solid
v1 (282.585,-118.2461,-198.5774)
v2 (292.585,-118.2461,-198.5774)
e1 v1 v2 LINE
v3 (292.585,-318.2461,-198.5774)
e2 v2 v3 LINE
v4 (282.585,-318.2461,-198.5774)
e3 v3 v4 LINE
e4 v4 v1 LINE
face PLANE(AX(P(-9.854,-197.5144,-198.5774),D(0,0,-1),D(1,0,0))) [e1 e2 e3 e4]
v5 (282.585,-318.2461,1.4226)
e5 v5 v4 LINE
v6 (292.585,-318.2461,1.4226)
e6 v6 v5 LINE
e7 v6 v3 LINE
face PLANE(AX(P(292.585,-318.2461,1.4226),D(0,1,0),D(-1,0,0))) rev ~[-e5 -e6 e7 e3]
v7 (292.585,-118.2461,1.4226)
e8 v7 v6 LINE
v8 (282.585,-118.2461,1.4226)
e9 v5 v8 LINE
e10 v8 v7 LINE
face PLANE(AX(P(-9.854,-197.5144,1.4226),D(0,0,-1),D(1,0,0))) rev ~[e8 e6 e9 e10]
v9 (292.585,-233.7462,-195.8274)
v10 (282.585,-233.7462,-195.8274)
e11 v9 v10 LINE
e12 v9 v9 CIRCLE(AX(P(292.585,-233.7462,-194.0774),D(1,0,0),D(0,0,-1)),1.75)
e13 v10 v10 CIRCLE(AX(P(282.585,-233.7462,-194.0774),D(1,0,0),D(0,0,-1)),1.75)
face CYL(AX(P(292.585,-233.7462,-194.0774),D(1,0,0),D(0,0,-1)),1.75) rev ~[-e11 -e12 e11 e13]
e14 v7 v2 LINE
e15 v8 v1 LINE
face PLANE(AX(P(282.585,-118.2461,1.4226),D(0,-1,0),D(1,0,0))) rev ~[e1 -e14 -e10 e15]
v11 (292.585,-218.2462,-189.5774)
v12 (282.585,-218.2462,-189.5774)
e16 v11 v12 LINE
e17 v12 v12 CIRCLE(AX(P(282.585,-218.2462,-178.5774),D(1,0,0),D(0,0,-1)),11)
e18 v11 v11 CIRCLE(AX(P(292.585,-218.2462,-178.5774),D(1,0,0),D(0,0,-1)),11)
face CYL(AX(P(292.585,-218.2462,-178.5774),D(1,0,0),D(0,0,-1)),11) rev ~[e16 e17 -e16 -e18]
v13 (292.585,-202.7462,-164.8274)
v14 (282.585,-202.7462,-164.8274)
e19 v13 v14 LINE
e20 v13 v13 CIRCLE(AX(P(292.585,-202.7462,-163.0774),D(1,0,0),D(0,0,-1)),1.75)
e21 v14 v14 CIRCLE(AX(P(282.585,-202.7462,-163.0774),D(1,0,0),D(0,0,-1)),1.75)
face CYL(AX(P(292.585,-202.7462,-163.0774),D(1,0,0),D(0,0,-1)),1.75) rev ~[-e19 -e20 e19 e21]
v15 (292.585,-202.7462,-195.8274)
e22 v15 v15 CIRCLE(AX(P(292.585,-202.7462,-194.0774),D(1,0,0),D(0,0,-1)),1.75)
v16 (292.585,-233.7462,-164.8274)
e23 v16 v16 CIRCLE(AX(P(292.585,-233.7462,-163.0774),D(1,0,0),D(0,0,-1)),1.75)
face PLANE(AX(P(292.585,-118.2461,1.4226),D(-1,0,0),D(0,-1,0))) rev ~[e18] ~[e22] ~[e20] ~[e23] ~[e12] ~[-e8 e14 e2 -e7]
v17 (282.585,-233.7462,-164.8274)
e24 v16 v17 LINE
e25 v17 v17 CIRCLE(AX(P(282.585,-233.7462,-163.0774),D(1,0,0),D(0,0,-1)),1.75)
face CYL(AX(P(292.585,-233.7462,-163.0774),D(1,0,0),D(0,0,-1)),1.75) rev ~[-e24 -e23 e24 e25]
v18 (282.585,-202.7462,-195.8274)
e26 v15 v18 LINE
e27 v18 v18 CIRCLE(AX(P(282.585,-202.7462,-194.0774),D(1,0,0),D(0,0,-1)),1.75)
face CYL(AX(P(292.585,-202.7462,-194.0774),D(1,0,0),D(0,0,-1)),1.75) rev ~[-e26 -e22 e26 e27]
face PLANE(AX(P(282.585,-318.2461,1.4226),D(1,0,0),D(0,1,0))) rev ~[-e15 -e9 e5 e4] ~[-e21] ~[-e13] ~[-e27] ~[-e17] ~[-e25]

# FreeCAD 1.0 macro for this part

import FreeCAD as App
import Part
import Sketcher


def add_polygon(sketch, points):
    """Adds a closed chain of lines whose ends are joined by coincident constraints."""
    first, n = sketch.GeometryCount, len(points)
    for a, b in zip(points, points[1:] + points[:1]):
        sketch.addGeometry(Part.LineSegment(App.Vector(*a, 0), App.Vector(*b, 0)), False)
    for i in range(n):
        sketch.addConstraint(Sketcher.Constraint("Coincident", first + i, 2, first + (i + 1) % n, 1))

doc = App.newDocument("Part")
params = doc.addObject("Spreadsheet::Sheet", "Params")
for row, (alias, value) in enumerate([
    ("sketch1_width", "10 mm"),
    ("sketch1_height", "200 mm"),
    ("pad1_length", "200 mm"),
    ("sketch2_diameter", "22 mm"),
    ("sketch2_diameter2", "3.5 mm"),
    ("pocket1_length", "10 mm"),
], start=1):
    params.set(f"A{row}", alias)
    params.set(f"B{row}", "=" + value)
    params.setAlias(f"B{row}", alias)

body = doc.addObject("PartDesign::Body", "Body")

# Sketch on XY plane
sketch1 = body.newObject("Sketcher::SketchObject", "Sketch")
sketch1.AttachmentSupport = (doc.getObject("XY_Plane"), [""])
sketch1.MapMode = "FlatFace"
sketch1.AttachmentOffset = App.Placement(App.Vector(0, 0, 1.4226), App.Rotation())
add_polygon(sketch1, [(293, -118), (293, -318), (283, -318), (283, -118)])  # lines 0-3
sketch1.addConstraint([
    Sketcher.Constraint("Vertical", 0),
    Sketcher.Constraint("Horizontal", 1),
    Sketcher.Constraint("Vertical", 2),
    Sketcher.Constraint("Horizontal", 3),
    Sketcher.Constraint("DistanceX", 1, 2, 1, 1, 10.0),
    Sketcher.Constraint("DistanceY", 0, 2, 0, 1, 200.0),
    Sketcher.Constraint("DistanceX", -1, 1, 0, 2, 292.585),
    Sketcher.Constraint("DistanceY", 0, 2, -1, 1, 318.246),
])
sketch1.setExpression("Constraints[8]", "Params.sketch1_width")
sketch1.setExpression("Constraints[9]", "Params.sketch1_height")
pad1 = body.newObject("PartDesign::Pad", "Pad")
pad1.Profile = sketch1
pad1.setExpression("Length", "Params.pad1_length")
pad1.Reversed = True

# Sketch on YZ plane
sketch2 = body.newObject("Sketcher::SketchObject", "Sketch001")
sketch2.AttachmentSupport = (doc.getObject("YZ_Plane"), [""])
sketch2.MapMode = "FlatFace"
sketch2.AttachmentOffset = App.Placement(App.Vector(0, 0, 292.585), App.Rotation())
sketch2.addGeometry([
    Part.Circle(App.Vector(-218.2, -178.6, 0), App.Vector(0, 0, 1), 11),  # 0
    Part.Circle(App.Vector(-233.7, -163.1, 0), App.Vector(0, 0, 1), 1.8),  # 1
    Part.Circle(App.Vector(-202.7, -163.1, 0), App.Vector(0, 0, 1), 1.8),  # 2
    Part.Circle(App.Vector(-202.7, -194.1, 0), App.Vector(0, 0, 1), 1.8),  # 3
    Part.Circle(App.Vector(-233.7, -194.1, 0), App.Vector(0, 0, 1), 1.8),  # 4
], False)
sketch2.addConstraint([
    Sketcher.Constraint("Equal", 1, 2),
    Sketcher.Constraint("Equal", 2, 3),
    Sketcher.Constraint("Equal", 3, 4),
    Sketcher.Constraint("Horizontal", 1, 3, 2, 3),
    Sketcher.Constraint("Horizontal", 3, 3, 4, 3),
    Sketcher.Constraint("Vertical", 2, 3, 3, 3),
    Sketcher.Constraint("Vertical", 1, 3, 4, 3),
    Sketcher.Constraint("Diameter", 0, 22.0),
    Sketcher.Constraint("Diameter", 1, 3.5),
    Sketcher.Constraint("DistanceX", 1, 3, 2, 3, 31.0),
    Sketcher.Constraint("DistanceY", 3, 3, 2, 3, 31.0),
    Sketcher.Constraint("DistanceX", 1, 3, 0, 3, 15.5),
    Sketcher.Constraint("DistanceY", 0, 3, 1, 3, 15.5),
    Sketcher.Constraint("DistanceX", 0, 3, -1, 1, 218.2462),
    Sketcher.Constraint("DistanceY", 0, 3, -1, 1, 178.5774),
])
sketch2.setExpression("Constraints[7]", "Params.sketch2_diameter")
sketch2.setExpression("Constraints[8]", "Params.sketch2_diameter2")
pocket1 = body.newObject("PartDesign::Pocket", "Pocket")
pocket1.Profile = sketch2
pocket1.setExpression("Length", "Params.pocket1_length")

doc.recompute()
